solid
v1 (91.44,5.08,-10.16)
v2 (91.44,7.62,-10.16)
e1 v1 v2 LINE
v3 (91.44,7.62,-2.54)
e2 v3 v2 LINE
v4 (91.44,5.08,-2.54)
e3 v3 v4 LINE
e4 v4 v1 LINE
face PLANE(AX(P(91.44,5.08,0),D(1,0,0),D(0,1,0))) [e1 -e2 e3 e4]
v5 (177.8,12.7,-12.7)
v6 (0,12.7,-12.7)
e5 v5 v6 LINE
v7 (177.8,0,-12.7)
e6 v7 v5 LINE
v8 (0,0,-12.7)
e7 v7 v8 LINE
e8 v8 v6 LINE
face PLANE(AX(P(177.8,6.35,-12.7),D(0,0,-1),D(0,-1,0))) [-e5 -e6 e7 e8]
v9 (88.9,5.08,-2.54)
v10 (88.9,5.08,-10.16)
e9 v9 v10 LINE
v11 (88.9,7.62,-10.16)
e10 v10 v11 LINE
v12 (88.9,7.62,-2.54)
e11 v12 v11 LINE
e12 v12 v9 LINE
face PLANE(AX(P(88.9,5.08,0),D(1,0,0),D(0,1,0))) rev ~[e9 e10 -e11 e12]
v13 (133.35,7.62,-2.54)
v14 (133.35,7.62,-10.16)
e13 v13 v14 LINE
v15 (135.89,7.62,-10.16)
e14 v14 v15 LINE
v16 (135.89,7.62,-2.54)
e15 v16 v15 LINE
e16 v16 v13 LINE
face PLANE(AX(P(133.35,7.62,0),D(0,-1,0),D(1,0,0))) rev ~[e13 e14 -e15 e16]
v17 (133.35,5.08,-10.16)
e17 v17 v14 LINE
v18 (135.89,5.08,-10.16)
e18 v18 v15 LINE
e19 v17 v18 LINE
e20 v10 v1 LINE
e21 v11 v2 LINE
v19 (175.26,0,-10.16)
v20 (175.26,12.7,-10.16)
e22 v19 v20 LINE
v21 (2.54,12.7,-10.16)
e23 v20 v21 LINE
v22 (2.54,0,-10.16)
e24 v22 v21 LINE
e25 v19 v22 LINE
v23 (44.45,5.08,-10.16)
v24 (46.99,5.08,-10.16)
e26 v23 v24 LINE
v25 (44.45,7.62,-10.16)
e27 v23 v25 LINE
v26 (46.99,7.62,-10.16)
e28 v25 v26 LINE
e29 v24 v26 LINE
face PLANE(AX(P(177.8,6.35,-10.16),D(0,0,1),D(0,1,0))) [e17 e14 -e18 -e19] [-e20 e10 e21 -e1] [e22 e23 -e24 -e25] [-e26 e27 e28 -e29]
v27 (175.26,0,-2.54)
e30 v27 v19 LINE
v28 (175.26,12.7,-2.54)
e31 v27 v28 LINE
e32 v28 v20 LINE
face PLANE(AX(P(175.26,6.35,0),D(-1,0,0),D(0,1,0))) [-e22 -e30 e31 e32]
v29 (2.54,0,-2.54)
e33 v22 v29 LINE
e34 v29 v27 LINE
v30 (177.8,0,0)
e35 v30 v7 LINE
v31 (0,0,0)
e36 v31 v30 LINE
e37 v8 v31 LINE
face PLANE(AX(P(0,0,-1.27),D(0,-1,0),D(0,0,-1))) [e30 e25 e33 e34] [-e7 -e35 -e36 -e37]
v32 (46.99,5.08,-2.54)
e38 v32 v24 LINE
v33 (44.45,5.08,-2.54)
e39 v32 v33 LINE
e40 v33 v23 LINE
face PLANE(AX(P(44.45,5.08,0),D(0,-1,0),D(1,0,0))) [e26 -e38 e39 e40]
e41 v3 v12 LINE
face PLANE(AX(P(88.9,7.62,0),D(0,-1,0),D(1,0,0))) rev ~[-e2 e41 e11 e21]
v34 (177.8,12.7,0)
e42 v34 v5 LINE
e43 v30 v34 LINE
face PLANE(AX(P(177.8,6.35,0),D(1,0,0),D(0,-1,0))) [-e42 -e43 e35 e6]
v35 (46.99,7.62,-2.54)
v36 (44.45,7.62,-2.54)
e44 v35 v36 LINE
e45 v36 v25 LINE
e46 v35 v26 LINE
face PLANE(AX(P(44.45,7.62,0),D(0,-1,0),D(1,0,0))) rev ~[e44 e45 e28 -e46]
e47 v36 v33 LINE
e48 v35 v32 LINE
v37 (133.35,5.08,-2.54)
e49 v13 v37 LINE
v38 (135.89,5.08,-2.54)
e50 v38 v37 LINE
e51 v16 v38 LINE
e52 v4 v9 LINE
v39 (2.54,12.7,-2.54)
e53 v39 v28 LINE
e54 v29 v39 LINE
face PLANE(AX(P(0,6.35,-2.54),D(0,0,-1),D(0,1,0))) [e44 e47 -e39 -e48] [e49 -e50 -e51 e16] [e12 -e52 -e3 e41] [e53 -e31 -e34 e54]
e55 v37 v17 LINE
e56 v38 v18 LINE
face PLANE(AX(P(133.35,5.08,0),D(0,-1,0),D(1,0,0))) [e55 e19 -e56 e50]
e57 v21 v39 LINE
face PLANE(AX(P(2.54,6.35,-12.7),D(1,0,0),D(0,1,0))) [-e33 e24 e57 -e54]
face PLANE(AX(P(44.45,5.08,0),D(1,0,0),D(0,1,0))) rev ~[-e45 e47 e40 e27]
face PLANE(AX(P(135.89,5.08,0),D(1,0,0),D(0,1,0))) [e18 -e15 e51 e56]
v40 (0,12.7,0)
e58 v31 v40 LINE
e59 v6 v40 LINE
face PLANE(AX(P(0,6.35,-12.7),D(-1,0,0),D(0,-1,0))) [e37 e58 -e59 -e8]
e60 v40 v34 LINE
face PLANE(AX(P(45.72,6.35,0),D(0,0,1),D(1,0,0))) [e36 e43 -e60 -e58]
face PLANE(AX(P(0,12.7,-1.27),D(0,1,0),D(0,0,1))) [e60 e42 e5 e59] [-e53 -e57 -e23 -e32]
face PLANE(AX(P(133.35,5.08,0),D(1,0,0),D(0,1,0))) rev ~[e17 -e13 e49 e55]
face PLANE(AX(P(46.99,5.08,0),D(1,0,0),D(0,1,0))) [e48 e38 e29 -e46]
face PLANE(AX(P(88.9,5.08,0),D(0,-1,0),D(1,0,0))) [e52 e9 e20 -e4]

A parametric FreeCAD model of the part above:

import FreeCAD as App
import Part
import Sketcher
from FreeCAD import Vector
Q = App.Units.Quantity

doc = App.newDocument("Part")
params = doc.addObject("Spreadsheet::Sheet", "Params")
for row, (alias, value) in enumerate([
    ("sketch1_width", "0.5 in"),
    ("sketch1_height", "0.1 in"),
    ("sketch2_width", "7 in"),
    ("sketch2_height", "0.5 in"),
    ("sketch3_width", "0.1 in"),
    ("pad1_length", "0.5 in"),
], start=1):
    params.set(f"A{row}", alias)
    params.set(f"B{row}", "=" + value)
    params.setAlias(f"B{row}", alias)

body = doc.addObject("PartDesign::Body", "Body")

sketch1 = body.newObject("Sketcher::SketchObject", "Sketch")
sketch1.AttachmentSupport = (doc.getObject("YZ_Plane"), [""])
sketch1.MapMode = "FlatFace"
sketch1.addGeometry([
    Part.LineSegment(Vector(0, 0, 0), Vector(0, -2.5, 0)),
    Part.LineSegment(Vector(0, -2.5, 0), Vector(12.7, -2.5, 0)),
    Part.LineSegment(Vector(12.7, -2.5, 0), Vector(12.7, 0, 0)),
    Part.LineSegment(Vector(12.7, 0, 0), Vector(0, 0, 0)),
], False)
sketch1.addConstraint([
    Sketcher.Constraint("Coincident", 0, 2, 1, 1),
    Sketcher.Constraint("Coincident", 1, 2, 2, 1),
    Sketcher.Constraint("Coincident", 2, 2, 3, 1),
    Sketcher.Constraint("Coincident", 3, 2, 0, 1),
    Sketcher.Constraint("Vertical", 0),
    Sketcher.Constraint("Horizontal", 1),
    Sketcher.Constraint("Vertical", 2),
    Sketcher.Constraint("Horizontal", 3),
    Sketcher.Constraint("Coincident", 3, 2, -1, 1),
    Sketcher.Constraint("DistanceX", 1, 1, 1, 2, Q("0.5 in")),
    Sketcher.Constraint("DistanceY", 0, 2, 0, 1, Q("0.1 in")),
])
sketch1.setExpression("Constraints[9]", "Params.sketch1_width")
sketch1.setExpression("Constraints[10]", "Params.sketch1_height")

sketch2 = body.newObject("Sketcher::SketchObject", "Sketch001")
sketch2.AttachmentSupport = (doc.getObject("XZ_Plane"), [""])
sketch2.MapMode = "FlatFace"
sketch2.addGeometry([
    Part.LineSegment(Vector(0, 0, 0), Vector(178, 0, 0)),
    Part.LineSegment(Vector(178, 0, 0), Vector(178, -13, 0)),
    Part.LineSegment(Vector(178, -13, 0), Vector(0, -13, 0)),
    Part.LineSegment(Vector(0, -13, 0), Vector(0, 0, 0)),
], False)
sketch2.addConstraint([
    Sketcher.Constraint("Coincident", 0, 2, 1, 1),
    Sketcher.Constraint("Coincident", 1, 2, 2, 1),
    Sketcher.Constraint("Coincident", 2, 2, 3, 1),
    Sketcher.Constraint("Coincident", 3, 2, 0, 1),
    Sketcher.Constraint("Horizontal", 0),
    Sketcher.Constraint("Vertical", 1),
    Sketcher.Constraint("Horizontal", 2),
    Sketcher.Constraint("Vertical", 3),
    Sketcher.Constraint("Coincident", 3, 2, -1, 1),
    Sketcher.Constraint("DistanceX", 0, 1, 0, 2, Q("7 in")),
    Sketcher.Constraint("DistanceY", 1, 2, 1, 1, Q("0.5 in")),
])
sketch2.setExpression("Constraints[9]", "Params.sketch2_width")
sketch2.setExpression("Constraints[10]", "Params.sketch2_height")
doc.recompute()

additivepipe = body.newObject("PartDesign::AdditivePipe", "AdditivePipe")
additivepipe.Profile = sketch1
additivepipe.Spine = (sketch2, ["Edge1", "Edge2", "Edge3", "Edge4"])
additivepipe.Transition = "Right corner"

sketch3 = body.newObject("Sketcher::SketchObject", "Sketch002")
sketch3.AttachmentSupport = (doc.getObject("XY_Plane"), [""])
sketch3.MapMode = "FlatFace"
sketch3.addGeometry([
    Part.LineSegment(Vector(44.5, 7.6, 0), Vector(44.5, 5.1, 0)),
    Part.LineSegment(Vector(44.5, 5.1, 0), Vector(47, 5.1, 0)),
    Part.LineSegment(Vector(47, 5.1, 0), Vector(47, 7.6, 0)),
    Part.LineSegment(Vector(47, 7.6, 0), Vector(44.5, 7.6, 0)),
    Part.LineSegment(Vector(88.9, 7.6, 0), Vector(88.9, 5.1, 0)),
    Part.LineSegment(Vector(88.9, 5.1, 0), Vector(91.4, 5.1, 0)),
    Part.LineSegment(Vector(91.4, 5.1, 0), Vector(91.4, 7.6, 0)),
    Part.LineSegment(Vector(91.4, 7.6, 0), Vector(88.9, 7.6, 0)),
    Part.LineSegment(Vector(133.3, 7.6, 0), Vector(133.3, 5.1, 0)),
    Part.LineSegment(Vector(133.3, 5.1, 0), Vector(135.9, 5.1, 0)),
    Part.LineSegment(Vector(135.9, 5.1, 0), Vector(135.9, 7.6, 0)),
    Part.LineSegment(Vector(135.9, 7.6, 0), Vector(133.3, 7.6, 0)),
], False)
sketch3.addConstraint([
    Sketcher.Constraint("Coincident", 0, 2, 1, 1),
    Sketcher.Constraint("Coincident", 1, 2, 2, 1),
    Sketcher.Constraint("Coincident", 2, 2, 3, 1),
    Sketcher.Constraint("Coincident", 3, 2, 0, 1),
    Sketcher.Constraint("Coincident", 4, 2, 5, 1),
    Sketcher.Constraint("Coincident", 5, 2, 6, 1),
    Sketcher.Constraint("Coincident", 6, 2, 7, 1),
    Sketcher.Constraint("Coincident", 7, 2, 4, 1),
    Sketcher.Constraint("Coincident", 8, 2, 9, 1),
    Sketcher.Constraint("Coincident", 9, 2, 10, 1),
    Sketcher.Constraint("Coincident", 10, 2, 11, 1),
    Sketcher.Constraint("Coincident", 11, 2, 8, 1),
    Sketcher.Constraint("Vertical", 0),
    Sketcher.Constraint("Horizontal", 1),
    Sketcher.Constraint("Vertical", 2),
    Sketcher.Constraint("Horizontal", 3),
    Sketcher.Constraint("Vertical", 4),
    Sketcher.Constraint("Horizontal", 5),
    Sketcher.Constraint("Vertical", 6),
    Sketcher.Constraint("Horizontal", 7),
    Sketcher.Constraint("Vertical", 8),
    Sketcher.Constraint("Horizontal", 9),
    Sketcher.Constraint("Vertical", 10),
    Sketcher.Constraint("Horizontal", 11),
    Sketcher.Constraint("Horizontal", 1, 2, 4, 2),
    Sketcher.Constraint("Horizontal", 3, 2, 6, 2),
    Sketcher.Constraint("Horizontal", 5, 2, 8, 2),
    Sketcher.Constraint("Horizontal", 7, 2, 10, 2),
    Sketcher.Constraint("Equal", 3, 5),
    Sketcher.Constraint("Equal", 7, 9),
    Sketcher.Constraint("Equal", 11, 0),
    Sketcher.Constraint("DistanceX", 1, 1, 1, 2, Q("0.1 in")),
    Sketcher.Constraint("DistanceY", -1, 1, 0, 2, Q("0.2 in")),
    Sketcher.Constraint("DistanceX", -1, 1, 4, 2, Q("3.5 in")),
    Sketcher.Constraint("DistanceX", 1, 2, 8, 2, Q("3.4 in")),
    Sketcher.Constraint("DistanceX", -1, 1, 0, 2, Q("1.75 in")),
])
sketch3.setExpression("Constraints[31]", "Params.sketch3_width")
pad1 = body.newObject("PartDesign::Pad", "Pad")
pad1.Profile = sketch3
pad1.setExpression("Length", "Params.pad1_length")
pad1.Reversed = True

doc.recompute()
